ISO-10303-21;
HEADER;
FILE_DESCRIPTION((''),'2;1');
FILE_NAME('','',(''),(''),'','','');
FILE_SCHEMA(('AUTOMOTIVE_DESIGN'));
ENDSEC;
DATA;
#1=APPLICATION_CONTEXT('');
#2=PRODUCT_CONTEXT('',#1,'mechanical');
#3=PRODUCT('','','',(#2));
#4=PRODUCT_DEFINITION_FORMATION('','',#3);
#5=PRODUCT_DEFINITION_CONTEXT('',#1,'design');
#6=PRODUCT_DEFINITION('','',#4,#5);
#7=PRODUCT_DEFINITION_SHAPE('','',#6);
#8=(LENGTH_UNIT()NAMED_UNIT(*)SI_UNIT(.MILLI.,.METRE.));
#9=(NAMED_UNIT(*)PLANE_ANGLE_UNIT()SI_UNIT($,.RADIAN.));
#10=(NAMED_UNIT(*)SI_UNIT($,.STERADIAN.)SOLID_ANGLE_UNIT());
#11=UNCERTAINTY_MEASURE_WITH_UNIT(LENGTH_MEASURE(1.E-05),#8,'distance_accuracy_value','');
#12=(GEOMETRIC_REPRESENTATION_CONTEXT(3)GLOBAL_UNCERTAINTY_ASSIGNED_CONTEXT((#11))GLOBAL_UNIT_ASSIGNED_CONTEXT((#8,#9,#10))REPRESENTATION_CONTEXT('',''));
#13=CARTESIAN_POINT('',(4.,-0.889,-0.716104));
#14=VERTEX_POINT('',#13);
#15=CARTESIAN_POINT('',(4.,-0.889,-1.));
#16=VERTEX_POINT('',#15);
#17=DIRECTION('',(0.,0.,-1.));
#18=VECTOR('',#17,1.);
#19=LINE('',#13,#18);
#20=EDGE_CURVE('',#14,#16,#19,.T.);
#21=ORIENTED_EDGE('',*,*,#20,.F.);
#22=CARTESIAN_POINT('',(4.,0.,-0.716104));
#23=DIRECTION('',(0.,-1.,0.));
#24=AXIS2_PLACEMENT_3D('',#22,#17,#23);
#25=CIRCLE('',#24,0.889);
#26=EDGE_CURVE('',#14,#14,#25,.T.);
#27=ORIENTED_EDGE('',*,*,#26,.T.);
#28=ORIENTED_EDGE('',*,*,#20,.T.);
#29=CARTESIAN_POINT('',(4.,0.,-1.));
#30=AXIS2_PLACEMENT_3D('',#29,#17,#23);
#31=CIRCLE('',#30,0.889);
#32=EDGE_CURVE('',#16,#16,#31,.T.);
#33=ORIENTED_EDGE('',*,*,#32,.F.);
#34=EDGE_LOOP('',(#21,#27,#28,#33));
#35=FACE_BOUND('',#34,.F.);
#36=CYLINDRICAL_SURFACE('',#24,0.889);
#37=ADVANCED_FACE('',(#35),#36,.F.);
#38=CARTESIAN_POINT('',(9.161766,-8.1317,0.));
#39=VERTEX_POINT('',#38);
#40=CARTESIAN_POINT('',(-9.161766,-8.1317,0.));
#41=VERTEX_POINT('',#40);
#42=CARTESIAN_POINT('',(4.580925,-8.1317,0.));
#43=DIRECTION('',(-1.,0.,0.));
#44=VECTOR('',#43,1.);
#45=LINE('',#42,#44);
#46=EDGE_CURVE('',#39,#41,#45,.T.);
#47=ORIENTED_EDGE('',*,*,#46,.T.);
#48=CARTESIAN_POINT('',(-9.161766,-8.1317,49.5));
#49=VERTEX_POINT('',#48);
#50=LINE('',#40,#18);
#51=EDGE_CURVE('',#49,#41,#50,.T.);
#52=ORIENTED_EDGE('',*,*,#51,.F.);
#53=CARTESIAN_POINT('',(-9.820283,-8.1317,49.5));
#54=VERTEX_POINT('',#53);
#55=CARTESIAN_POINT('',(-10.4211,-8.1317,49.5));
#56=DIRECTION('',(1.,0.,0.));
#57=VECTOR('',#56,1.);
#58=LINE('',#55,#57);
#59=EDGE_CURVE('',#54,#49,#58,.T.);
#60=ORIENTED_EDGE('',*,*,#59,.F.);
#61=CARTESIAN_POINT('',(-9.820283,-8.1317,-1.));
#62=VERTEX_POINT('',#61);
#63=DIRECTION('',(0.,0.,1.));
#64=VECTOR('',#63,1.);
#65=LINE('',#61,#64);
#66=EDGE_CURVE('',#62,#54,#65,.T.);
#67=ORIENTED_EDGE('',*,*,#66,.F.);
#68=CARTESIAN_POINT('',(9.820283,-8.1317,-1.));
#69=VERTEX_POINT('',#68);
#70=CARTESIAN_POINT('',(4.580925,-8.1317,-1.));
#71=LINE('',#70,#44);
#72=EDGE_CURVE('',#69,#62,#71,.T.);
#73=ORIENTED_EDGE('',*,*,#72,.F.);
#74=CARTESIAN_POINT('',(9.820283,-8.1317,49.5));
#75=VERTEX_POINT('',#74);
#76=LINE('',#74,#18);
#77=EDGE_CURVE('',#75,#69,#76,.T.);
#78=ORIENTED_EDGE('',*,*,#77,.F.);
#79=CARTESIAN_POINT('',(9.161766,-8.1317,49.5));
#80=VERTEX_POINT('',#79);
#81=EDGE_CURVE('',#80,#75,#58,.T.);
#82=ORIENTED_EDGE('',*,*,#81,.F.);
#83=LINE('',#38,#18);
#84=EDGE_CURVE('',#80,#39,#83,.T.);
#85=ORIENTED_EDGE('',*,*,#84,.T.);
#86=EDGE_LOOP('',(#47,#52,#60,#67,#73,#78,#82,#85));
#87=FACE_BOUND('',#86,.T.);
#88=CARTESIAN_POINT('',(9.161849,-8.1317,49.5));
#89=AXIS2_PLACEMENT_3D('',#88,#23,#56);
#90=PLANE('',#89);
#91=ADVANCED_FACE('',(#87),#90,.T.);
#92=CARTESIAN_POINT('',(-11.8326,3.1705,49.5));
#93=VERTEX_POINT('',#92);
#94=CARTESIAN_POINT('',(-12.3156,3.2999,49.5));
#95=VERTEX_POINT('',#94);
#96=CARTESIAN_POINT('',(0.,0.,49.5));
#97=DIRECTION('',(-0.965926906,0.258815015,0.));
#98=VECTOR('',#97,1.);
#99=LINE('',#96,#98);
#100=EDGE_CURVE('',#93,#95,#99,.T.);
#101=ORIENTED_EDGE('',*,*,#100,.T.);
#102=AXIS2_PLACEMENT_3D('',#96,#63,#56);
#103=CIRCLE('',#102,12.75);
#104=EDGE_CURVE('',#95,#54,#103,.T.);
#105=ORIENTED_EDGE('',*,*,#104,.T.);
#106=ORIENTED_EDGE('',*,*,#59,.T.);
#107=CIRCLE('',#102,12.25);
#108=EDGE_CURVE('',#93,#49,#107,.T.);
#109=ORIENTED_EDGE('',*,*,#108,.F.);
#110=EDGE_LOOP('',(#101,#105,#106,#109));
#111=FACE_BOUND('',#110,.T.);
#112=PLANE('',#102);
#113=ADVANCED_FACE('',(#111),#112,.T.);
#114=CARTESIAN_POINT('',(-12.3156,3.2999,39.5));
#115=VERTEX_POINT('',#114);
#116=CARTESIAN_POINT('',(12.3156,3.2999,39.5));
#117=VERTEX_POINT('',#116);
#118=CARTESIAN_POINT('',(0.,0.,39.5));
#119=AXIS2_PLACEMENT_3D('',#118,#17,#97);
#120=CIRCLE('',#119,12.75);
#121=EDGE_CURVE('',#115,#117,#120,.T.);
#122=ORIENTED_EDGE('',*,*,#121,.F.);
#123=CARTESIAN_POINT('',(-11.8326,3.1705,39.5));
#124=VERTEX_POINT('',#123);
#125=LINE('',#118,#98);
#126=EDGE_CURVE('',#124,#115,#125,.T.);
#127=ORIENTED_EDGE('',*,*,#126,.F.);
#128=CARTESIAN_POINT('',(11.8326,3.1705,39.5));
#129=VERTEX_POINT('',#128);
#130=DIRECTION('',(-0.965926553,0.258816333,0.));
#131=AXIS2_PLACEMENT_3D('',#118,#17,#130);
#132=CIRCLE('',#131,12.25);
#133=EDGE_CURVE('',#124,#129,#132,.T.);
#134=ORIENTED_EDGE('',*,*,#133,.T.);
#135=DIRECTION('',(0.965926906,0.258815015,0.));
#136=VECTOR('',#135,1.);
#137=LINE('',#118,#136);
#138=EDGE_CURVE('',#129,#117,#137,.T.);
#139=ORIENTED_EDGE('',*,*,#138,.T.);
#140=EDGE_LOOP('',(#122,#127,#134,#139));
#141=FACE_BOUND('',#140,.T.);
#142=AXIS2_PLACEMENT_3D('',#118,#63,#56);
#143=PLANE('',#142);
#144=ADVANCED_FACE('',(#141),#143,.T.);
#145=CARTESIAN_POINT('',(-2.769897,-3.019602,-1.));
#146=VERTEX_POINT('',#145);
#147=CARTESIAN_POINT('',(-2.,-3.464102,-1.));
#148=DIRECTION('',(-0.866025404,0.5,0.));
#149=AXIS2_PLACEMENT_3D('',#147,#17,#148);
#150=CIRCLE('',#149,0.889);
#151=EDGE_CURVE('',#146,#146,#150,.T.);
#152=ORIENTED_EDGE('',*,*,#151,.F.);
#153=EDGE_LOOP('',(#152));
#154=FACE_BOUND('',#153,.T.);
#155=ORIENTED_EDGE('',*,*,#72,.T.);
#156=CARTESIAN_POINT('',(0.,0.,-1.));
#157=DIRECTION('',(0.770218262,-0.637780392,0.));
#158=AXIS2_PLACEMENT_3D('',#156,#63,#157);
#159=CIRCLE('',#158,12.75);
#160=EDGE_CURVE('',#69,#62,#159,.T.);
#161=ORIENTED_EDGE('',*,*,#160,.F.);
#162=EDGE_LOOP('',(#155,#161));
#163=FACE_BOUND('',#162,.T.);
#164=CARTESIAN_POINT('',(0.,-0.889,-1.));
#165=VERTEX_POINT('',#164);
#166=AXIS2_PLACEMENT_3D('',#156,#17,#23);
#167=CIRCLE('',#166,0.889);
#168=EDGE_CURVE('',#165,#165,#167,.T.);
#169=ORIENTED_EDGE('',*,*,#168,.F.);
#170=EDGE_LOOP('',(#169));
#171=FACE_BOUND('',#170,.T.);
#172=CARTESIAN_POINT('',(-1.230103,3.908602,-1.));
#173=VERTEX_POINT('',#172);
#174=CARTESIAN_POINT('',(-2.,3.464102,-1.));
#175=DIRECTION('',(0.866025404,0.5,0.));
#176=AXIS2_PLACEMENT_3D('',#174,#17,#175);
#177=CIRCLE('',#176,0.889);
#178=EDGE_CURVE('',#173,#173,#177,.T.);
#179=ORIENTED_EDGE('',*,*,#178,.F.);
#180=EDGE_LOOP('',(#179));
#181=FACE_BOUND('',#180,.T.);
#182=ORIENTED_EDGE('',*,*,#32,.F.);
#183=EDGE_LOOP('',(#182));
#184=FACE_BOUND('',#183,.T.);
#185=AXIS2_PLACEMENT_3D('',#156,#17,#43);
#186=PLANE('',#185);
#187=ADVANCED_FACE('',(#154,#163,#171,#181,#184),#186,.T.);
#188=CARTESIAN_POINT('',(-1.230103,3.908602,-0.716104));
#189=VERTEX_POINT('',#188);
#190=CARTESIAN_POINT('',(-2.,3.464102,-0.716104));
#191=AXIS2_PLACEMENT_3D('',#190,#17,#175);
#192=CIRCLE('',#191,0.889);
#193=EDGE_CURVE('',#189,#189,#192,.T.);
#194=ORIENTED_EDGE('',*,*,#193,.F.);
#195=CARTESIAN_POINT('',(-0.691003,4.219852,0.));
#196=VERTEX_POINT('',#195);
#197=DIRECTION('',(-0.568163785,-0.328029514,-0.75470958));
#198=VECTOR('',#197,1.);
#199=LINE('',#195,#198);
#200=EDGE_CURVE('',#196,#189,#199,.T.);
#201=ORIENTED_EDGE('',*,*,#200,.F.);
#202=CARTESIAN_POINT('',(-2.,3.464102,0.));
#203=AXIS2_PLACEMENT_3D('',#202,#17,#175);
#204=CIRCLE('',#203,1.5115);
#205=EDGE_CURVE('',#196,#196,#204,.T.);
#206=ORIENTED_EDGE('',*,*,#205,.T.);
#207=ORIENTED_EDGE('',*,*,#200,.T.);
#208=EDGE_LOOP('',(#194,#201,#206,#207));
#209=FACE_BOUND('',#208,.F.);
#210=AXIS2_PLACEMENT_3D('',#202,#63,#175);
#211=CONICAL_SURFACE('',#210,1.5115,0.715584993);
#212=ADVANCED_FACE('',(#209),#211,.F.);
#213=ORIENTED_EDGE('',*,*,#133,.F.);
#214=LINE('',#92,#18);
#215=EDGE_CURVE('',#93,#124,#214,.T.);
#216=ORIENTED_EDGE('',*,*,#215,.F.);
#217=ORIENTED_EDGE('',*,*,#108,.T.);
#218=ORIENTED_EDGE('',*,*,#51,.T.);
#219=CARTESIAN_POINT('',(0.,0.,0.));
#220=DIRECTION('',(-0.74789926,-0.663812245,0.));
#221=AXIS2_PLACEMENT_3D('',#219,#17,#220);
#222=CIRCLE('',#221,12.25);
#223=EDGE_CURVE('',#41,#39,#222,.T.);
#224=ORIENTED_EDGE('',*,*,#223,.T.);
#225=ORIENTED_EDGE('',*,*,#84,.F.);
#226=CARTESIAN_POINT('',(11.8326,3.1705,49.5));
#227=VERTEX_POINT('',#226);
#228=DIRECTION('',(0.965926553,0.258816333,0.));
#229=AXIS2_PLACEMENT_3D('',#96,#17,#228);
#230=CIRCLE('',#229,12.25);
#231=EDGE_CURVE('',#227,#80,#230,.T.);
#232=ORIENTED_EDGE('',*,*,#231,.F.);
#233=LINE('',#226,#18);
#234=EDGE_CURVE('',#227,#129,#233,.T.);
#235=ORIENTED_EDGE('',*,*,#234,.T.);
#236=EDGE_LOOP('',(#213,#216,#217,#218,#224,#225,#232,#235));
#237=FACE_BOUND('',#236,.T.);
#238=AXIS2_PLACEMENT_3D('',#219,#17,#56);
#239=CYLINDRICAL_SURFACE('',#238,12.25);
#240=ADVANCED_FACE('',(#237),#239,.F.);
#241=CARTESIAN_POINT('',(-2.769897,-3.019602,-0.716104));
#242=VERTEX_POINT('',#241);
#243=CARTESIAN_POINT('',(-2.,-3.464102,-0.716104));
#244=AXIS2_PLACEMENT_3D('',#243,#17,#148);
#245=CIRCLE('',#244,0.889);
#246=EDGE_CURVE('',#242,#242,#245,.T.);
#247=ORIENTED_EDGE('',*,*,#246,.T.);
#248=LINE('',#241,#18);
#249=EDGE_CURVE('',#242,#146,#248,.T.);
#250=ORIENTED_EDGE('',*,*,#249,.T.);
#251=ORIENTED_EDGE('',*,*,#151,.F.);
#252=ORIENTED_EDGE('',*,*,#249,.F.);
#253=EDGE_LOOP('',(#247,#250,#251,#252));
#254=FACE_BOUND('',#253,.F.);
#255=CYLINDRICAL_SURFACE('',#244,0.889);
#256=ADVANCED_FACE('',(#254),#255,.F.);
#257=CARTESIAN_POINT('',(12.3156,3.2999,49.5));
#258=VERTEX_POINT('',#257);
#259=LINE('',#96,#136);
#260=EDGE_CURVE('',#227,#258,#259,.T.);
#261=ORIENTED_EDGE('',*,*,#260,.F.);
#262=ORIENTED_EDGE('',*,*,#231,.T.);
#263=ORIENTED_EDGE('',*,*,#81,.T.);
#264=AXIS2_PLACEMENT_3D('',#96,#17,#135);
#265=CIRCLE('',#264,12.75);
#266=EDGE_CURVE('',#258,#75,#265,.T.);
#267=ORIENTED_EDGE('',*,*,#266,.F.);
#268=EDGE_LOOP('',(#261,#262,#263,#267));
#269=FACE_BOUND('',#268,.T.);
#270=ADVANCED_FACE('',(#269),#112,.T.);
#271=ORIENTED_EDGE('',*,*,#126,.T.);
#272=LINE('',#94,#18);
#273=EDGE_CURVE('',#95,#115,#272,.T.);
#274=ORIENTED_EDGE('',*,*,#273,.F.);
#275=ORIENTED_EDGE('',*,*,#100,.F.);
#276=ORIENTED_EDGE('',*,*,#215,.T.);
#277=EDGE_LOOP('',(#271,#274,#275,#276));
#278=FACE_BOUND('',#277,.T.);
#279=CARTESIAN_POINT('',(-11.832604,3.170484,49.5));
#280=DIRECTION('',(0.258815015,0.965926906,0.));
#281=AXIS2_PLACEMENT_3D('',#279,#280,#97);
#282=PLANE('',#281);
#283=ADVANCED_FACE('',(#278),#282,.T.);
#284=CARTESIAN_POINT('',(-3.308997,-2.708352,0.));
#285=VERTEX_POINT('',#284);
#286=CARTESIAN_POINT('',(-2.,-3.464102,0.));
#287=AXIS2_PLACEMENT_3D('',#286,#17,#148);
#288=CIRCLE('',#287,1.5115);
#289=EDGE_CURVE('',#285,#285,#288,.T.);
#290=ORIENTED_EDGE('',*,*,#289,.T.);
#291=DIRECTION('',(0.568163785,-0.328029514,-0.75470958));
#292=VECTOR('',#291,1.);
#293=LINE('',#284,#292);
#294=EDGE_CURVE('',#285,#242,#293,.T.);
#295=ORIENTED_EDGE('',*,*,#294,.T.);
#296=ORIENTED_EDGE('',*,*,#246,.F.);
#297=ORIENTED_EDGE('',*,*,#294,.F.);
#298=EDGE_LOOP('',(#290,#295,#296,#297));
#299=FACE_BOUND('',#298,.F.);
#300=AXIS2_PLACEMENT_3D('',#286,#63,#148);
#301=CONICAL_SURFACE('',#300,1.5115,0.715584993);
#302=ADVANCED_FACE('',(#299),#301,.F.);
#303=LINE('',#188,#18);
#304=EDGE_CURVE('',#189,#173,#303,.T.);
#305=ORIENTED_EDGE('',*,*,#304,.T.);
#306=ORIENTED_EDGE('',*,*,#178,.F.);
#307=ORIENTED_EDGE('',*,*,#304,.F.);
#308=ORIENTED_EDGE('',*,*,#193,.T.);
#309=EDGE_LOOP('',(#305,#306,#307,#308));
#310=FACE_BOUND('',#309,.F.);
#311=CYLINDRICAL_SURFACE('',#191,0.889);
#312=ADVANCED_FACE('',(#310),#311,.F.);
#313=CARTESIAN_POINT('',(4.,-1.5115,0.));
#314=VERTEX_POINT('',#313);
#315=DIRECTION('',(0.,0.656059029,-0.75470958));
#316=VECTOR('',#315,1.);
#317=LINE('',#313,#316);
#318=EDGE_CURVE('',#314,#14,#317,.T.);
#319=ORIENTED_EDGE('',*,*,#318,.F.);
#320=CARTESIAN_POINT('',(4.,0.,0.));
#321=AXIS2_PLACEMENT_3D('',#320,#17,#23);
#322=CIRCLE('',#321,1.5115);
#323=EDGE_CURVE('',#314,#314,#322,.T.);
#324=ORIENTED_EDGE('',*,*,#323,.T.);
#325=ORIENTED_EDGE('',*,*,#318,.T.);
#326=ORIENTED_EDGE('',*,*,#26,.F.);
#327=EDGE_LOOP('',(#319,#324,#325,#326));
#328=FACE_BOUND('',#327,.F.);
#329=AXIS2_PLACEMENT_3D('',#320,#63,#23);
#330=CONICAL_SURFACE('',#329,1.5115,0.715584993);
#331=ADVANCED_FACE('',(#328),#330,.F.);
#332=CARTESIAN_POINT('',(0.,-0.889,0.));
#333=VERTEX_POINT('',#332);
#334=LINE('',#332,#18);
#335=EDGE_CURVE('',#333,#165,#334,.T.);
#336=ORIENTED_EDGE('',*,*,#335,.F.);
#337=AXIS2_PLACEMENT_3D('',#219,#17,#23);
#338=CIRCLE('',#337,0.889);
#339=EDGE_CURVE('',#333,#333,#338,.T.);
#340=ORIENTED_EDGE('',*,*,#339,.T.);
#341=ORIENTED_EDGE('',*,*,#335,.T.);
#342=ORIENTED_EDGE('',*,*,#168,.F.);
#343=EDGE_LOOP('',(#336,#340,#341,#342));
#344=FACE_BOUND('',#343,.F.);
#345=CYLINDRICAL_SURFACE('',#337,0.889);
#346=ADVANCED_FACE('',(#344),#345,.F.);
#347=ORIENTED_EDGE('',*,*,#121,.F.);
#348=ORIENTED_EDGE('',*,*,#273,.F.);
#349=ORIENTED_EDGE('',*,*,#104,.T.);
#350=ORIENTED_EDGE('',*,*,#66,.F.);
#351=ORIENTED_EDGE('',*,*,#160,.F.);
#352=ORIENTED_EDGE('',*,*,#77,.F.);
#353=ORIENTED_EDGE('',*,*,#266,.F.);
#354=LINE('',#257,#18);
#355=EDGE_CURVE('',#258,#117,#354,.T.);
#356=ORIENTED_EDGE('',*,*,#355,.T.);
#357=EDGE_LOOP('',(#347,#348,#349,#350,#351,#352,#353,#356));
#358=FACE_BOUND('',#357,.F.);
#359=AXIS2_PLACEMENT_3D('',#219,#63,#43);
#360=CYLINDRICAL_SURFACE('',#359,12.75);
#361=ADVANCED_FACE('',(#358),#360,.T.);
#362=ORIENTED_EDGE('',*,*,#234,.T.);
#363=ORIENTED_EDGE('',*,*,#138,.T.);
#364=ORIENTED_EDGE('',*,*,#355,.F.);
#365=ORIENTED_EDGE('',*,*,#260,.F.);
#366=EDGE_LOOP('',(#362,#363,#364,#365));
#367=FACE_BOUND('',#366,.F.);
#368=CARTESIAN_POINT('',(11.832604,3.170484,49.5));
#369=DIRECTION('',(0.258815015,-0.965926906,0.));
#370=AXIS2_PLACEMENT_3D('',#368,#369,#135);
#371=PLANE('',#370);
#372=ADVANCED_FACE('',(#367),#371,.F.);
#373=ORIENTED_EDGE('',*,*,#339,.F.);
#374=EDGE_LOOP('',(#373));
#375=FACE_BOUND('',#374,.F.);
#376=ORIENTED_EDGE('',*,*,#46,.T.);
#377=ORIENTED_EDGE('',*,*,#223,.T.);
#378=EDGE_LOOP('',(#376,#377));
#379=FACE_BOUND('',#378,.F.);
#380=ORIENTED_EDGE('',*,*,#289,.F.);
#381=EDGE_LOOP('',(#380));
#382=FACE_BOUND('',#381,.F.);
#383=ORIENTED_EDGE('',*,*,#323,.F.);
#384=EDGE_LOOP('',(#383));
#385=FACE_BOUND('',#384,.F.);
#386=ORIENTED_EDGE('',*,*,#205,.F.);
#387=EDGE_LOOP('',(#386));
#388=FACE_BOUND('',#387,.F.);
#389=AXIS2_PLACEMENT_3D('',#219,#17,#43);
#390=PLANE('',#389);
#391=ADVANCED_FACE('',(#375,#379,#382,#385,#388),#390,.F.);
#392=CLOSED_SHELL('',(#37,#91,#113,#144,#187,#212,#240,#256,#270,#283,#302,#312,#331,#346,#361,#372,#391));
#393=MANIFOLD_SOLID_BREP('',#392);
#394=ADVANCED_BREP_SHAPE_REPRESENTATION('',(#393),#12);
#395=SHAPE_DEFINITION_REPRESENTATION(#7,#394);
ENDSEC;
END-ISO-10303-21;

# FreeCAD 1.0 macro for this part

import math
import FreeCAD as App
import Part
import Sketcher
Q = App.Units.Quantity


def add_polygon(sketch, points):
    """Adds a closed chain of lines whose ends are joined by coincident constraints."""
    first, n = sketch.GeometryCount, len(points)
    for a, b in zip(points, points[1:] + points[:1]):
        sketch.addGeometry(Part.LineSegment(App.Vector(*a, 0), App.Vector(*b, 0)), False)
    for i in range(n):
        sketch.addConstraint(Sketcher.Constraint("Coincident", first + i, 2, first + (i + 1) % n, 1))

doc = App.newDocument("Part")
body = doc.addObject("PartDesign::Body", "Body")

# Sketch on XY plane
sketch1 = doc.addObject("Sketcher::SketchObject", "Sketch")
body.addObject(sketch1)
sketch1.AttachmentSupport = (doc.XY_Plane, [""])
sketch1.MapMode = "FlatFace"
sketch1.addGeometry([
    Part.Circle(App.Vector(0, 0, 0), App.Vector(0, 0, 1), 13),
    Part.Circle(App.Vector(0, 0, 0), App.Vector(0, 0, 1), 12),
], False)
sketch1.addConstraint([
    Sketcher.Constraint("Coincident", 0, 3, -1, 1),
    Sketcher.Constraint("Coincident", 1, 3, -1, 1),
    Sketcher.Constraint("Diameter", 0, Q("25.5 mm")),
    Sketcher.Constraint("Diameter", 1, Q("24.5 mm")),
])
pad1 = doc.addObject("PartDesign::Pad", "Pad")
body.addObject(pad1)
pad1.Profile = sketch1
pad1.Length = 49.5

# Sketch on XY plane
sketch2 = doc.addObject("Sketcher::SketchObject", "Sketch001")
body.addObject(sketch2)
sketch2.AttachmentSupport = (doc.XY_Plane, [""])
sketch2.MapMode = "FlatFace"
sketch2.AttachmentOffset = App.Placement(App.Vector(0, 0, 49.5), App.Rotation())
sketch2.addGeometry([
    Part.LineSegment(App.Vector(0, 0, 0), App.Vector(-9, -9, 0)),  # 0
    Part.ArcOfCircle(Part.Circle(App.Vector(0, 0, 0), App.Vector(0, 0, 1), 12.8), math.radians(-135), math.radians(-45)),  # 1
    Part.LineSegment(App.Vector(9, -9, 0), App.Vector(0, 0, 0)),  # 2
    Part.ArcOfCircle(Part.Circle(App.Vector(0, 0, 0), App.Vector(0, 0, 1), 12.2), math.radians(15), math.radians(165)),  # 3
    Part.LineSegment(App.Vector(11.8, 3.2, 0), App.Vector(12.3, 3.3, 0)),  # 4
    Part.ArcOfCircle(Part.Circle(App.Vector(0, 0, 0), App.Vector(0, 0, 1), 12.8), math.radians(15), math.radians(165)),  # 5
    Part.LineSegment(App.Vector(-12.3, 3.3, 0), App.Vector(-11.8, 3.2, 0)),  # 6
], False)
sketch2.addConstraint([
    Sketcher.Constraint("Coincident", 0, 2, 1, 1),
    Sketcher.Constraint("Coincident", 1, 2, 2, 1),
    Sketcher.Constraint("Coincident", 2, 2, 0, 1),
    Sketcher.Constraint("Coincident", 3, 1, 4, 1),
    Sketcher.Constraint("Coincident", 4, 2, 5, 1),
    Sketcher.Constraint("Coincident", 5, 2, 6, 1),
    Sketcher.Constraint("Coincident", 6, 2, 3, 2),
    Sketcher.Constraint("Coincident", 1, 3, -1, 1),
    Sketcher.Constraint("Coincident", 3, 3, -1, 1),
    Sketcher.Constraint("Coincident", 5, 3, -1, 1),
    Sketcher.Constraint("Coincident", 2, 2, -1, 1),
    Sketcher.Constraint("Equal", 1, 5),
    Sketcher.Constraint("Perpendicular", 0, 2),
    Sketcher.Constraint("Horizontal", 0, 2, 1, 2),
    Sketcher.Constraint("Horizontal", 4, 2, 5, 2),
    Sketcher.Constraint("Horizontal", 3, 1, 6, 2),
    Sketcher.Constraint("Angle", 4, Q("14.9998 deg")),
    Sketcher.Constraint("Radius", 1, Q("12.75 mm")),
    Sketcher.Constraint("Radius", 3, Q("12.25 mm")),
    Sketcher.Constraint("DistanceY", -1, 1, 4, 2, Q("3.3 mm")),
])
pocket1 = doc.addObject("PartDesign::Pocket", "Pocket")
body.addObject(pocket1)
pocket1.Profile = sketch2
pocket1.Length = 10

# Sketch on XY plane
sketch3 = doc.addObject("Sketcher::SketchObject", "Sketch002")
body.addObject(sketch3)
sketch3.AttachmentSupport = (doc.XY_Plane, [""])
sketch3.MapMode = "FlatFace"
sketch3.addGeometry(Part.Circle(App.Vector(0, 0, 0), App.Vector(0, 0, 1), 13), False)
sketch3.addConstraint([
    Sketcher.Constraint("Coincident", 0, 3, -1, 1),
    Sketcher.Constraint("Diameter", 0, Q("25.5 mm")),
])
pad2 = doc.addObject("PartDesign::Pad", "Pad001")
body.addObject(pad2)
pad2.Profile = sketch3
pad2.Length = 1
pad2.Reversed = True

# Sketch on XY plane
sketch4 = doc.addObject("Sketcher::SketchObject", "Sketch003")
body.addObject(sketch4)
sketch4.AttachmentSupport = (doc.XY_Plane, [""])
sketch4.MapMode = "FlatFace"
sketch4.AttachmentOffset = App.Placement(App.Vector(0, 0, 49.5), App.Rotation())
add_polygon(sketch4, [(-10.4, -8.1), (-10.4, -13.1), (11.1, -13.1), (11.1, -8.1)])  # lines 0-3
sketch4.addConstraint([
    Sketcher.Constraint("Vertical", 0),
    Sketcher.Constraint("Horizontal", 1),
    Sketcher.Constraint("Vertical", 2),
    Sketcher.Constraint("Horizontal", 3),
    Sketcher.Constraint("DistanceX", 1, 1, 1, 2, Q("21.5292 mm")),
    Sketcher.Constraint("DistanceY", 0, 2, 0, 1, Q("4.9335 mm")),
    Sketcher.Constraint("DistanceX", 0, 2, -1, 1, Q("10.421 mm")),
    Sketcher.Constraint("DistanceY", 0, 2, -1, 1, Q("13.0652 mm")),
])
pocket2 = doc.addObject("PartDesign::Pocket", "Pocket001")
body.addObject(pocket2)
pocket2.Profile = sketch4
pocket2.Type = "ThroughAll"

# Sketch on XY plane
sketch5 = doc.addObject("Sketcher::SketchObject", "Sketch004")
body.addObject(sketch5)
sketch5.AttachmentSupport = (doc.XY_Plane, [""])
sketch5.MapMode = "FlatFace"
sketch5.addGeometry(Part.Circle(App.Vector(4, 0, 0), App.Vector(0, 0, 1), 0.9), False)
sketch5.addConstraint([
    Sketcher.Constraint("PointOnObject", 0, 3, -1),
    Sketcher.Constraint("Diameter", 0, Q("1.778 mm")),
    Sketcher.Constraint("DistanceX", -1, 1, 0, 3, Q("4 mm")),
])
doc.recompute()
hole = doc.addObject("PartDesign::Hole", "Hole")
body.addObject(hole)
hole.Profile = sketch5
hole.ThreadType = "None"
hole.Diameter = 1.778
hole.DepthType = "Dimension"
hole.Depth = 8
hole.DrillPoint = "Angled"
hole.DrillPointAngle = 118
hole.HoleCutType = "Countersink"
hole.HoleCutDiameter = 3.023
hole.HoleCutCountersinkAngle = 82
doc.recompute()

polarpattern = doc.addObject("PartDesign::PolarPattern", "PolarPattern")
body.addObject(polarpattern)
polarpattern.Originals = [hole]
polarpattern.Axis = (doc.Z_Axis, [""])
polarpattern.Angle = 360
polarpattern.Occurrences = 3
body.Tip = polarpattern

# Sketch on XY plane
sketch6 = doc.addObject("Sketcher::SketchObject", "Sketch005")
body.addObject(sketch6)
sketch6.AttachmentSupport = (doc.XY_Plane, [""])
sketch6.MapMode = "FlatFace"
sketch6.addGeometry(Part.Circle(App.Vector(0, 0, 0), App.Vector(0, 0, 1), 0.9), False)
sketch6.addConstraint([
    Sketcher.Constraint("Coincident", 0, 3, -1, 1),
    Sketcher.Constraint("Diameter", 0, Q("1.778 mm")),
])
doc.recompute()
hole2 = doc.addObject("PartDesign::Hole", "Hole001")
body.addObject(hole2)
hole2.Profile = sketch6
hole2.ThreadType = "None"
hole2.Diameter = 1.778
hole2.DepthType = "ThroughAll"

doc.recompute()
